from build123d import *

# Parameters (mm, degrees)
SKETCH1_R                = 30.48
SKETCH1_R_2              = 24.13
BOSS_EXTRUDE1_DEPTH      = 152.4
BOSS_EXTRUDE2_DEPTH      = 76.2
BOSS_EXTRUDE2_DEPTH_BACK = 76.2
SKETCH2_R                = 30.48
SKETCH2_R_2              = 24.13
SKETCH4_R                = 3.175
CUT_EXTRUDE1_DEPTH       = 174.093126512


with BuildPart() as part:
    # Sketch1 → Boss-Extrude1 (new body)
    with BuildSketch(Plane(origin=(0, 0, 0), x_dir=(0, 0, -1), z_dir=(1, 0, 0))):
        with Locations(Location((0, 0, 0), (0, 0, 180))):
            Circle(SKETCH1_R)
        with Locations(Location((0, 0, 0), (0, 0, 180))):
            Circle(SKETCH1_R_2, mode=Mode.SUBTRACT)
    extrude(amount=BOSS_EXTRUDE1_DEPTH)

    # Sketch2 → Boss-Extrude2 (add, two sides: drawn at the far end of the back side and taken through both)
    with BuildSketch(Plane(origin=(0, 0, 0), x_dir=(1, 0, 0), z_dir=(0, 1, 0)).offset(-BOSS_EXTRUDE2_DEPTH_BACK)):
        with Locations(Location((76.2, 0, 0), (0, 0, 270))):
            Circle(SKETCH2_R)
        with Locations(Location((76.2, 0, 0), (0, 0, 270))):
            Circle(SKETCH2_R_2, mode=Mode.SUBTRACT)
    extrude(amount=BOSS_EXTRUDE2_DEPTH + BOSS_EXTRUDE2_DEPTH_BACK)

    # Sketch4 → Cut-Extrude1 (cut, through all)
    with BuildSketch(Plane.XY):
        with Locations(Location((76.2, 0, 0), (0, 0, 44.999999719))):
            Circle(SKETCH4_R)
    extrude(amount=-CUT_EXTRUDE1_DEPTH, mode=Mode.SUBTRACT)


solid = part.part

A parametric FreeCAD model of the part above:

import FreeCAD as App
import Part
import Sketcher

V = App.Vector
Q = App.Units.Quantity

doc = App.newDocument("Part")
body = doc.addObject("PartDesign::Body", "Body")

sketch1 = body.newObject("Sketcher::SketchObject", "Sketch")
sketch1.AttachmentSupport = (doc.getObject("YZ_Plane"), [""])
sketch1.MapMode = "FlatFace"
sketch1.addGeometry(Part.Circle(V(0, 0, 0), V(0, 0, 1), 30), False)
sketch1.addGeometry(Part.Circle(V(0, 0, 0), V(0, 0, 1), 24), False)
sketch1.addConstraint(Sketcher.Constraint("Coincident", 0, 3, -1, 1))
sketch1.addConstraint(Sketcher.Constraint("Coincident", 1, 3, -1, 1))
sketch1.addConstraint(Sketcher.Constraint("Diameter", 0, Q("2.4 in")))
sketch1.addConstraint(Sketcher.Constraint("Diameter", 1, Q("1.9 in")))
pad1 = body.newObject("PartDesign::Pad", "Pad")
pad1.Profile = sketch1
pad1.Length = Q("6 in")

sketch2 = body.newObject("Sketcher::SketchObject", "Sketch001")
sketch2.AttachmentSupport = (doc.getObject("XZ_Plane"), [""])
sketch2.MapMode = "FlatFace"
sketch2.addGeometry(Part.Circle(V(76, 0, 0), V(0, 0, 1), 30), False)
sketch2.addGeometry(Part.Circle(V(76, 0, 0), V(0, 0, 1), 24), False)
sketch2.addConstraint(Sketcher.Constraint("Coincident", 1, 3, 0, 3))
sketch2.addConstraint(Sketcher.Constraint("PointOnObject", 0, 3, -1))
sketch2.addConstraint(Sketcher.Constraint("Diameter", 0, Q("2.4 in")))
sketch2.addConstraint(Sketcher.Constraint("Diameter", 1, Q("1.9 in")))
sketch2.addConstraint(Sketcher.Constraint("DistanceX", -1, 1, 0, 3, Q("3 in")))
pad2 = body.newObject("PartDesign::Pad", "Pad001")
pad2.Profile = sketch2
pad2.Type = "TwoLengths"
pad2.Length = Q("3 in")
pad2.Length2 = Q("3 in")
pad2.Reversed = True

sketch3 = body.newObject("Sketcher::SketchObject", "Sketch002")
sketch3.AttachmentSupport = (doc.getObject("XY_Plane"), [""])
sketch3.MapMode = "FlatFace"
sketch3.addGeometry(Part.Circle(V(76.2, 0, 0), V(0, 0, 1), 3.2), False)
sketch3.addConstraint(Sketcher.Constraint("PointOnObject", 0, 3, -1))
sketch3.addConstraint(Sketcher.Constraint("Diameter", 0, Q("0.25 in")))
sketch3.addConstraint(Sketcher.Constraint("DistanceX", -1, 1, 0, 3, Q("3 in")))
pocket1 = body.newObject("PartDesign::Pocket", "Pocket")
pocket1.Profile = sketch3
pocket1.Type = "ThroughAll"

doc.recompute()
